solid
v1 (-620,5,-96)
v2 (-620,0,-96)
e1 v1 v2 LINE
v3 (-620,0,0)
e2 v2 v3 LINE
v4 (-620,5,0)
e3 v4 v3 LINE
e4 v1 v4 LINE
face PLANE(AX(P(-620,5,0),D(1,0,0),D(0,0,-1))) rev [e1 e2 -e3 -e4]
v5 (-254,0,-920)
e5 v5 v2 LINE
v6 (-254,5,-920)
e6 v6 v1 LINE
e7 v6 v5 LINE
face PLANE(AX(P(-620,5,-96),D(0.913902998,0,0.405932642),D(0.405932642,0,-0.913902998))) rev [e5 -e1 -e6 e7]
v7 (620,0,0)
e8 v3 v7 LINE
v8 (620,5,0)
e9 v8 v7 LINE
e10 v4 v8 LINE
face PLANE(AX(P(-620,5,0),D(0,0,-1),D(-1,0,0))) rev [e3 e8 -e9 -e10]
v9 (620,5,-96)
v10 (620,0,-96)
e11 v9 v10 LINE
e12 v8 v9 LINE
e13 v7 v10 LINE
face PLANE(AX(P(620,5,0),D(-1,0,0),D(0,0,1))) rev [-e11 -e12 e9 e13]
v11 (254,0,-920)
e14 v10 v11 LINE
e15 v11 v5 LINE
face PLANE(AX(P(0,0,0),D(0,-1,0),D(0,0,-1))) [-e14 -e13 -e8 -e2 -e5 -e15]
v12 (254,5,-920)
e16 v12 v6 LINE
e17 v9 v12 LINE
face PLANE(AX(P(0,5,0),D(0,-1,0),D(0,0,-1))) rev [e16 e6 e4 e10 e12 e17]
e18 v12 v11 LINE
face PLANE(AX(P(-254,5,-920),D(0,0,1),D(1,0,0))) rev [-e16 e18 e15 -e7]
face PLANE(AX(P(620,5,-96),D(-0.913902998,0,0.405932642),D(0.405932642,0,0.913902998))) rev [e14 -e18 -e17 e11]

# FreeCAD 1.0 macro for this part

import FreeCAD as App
import Part
import Sketcher

V = App.Vector


def add_polygon(sketch, points):
    """Adds a closed chain of lines whose ends are joined by coincident constraints."""
    first, n = sketch.GeometryCount, len(points)
    for a, b in zip(points, points[1:] + points[:1]):
        sketch.addGeometry(Part.LineSegment(App.Vector(*a, 0), App.Vector(*b, 0)), False)
    for i in range(n):
        sketch.addConstraint(Sketcher.Constraint("Coincident", first + i, 2, first + (i + 1) % n, 1))

doc = App.newDocument("Part")
body = doc.addObject("PartDesign::Body", "Body")

sketch1 = body.newObject("Sketcher::SketchObject", "Sketch")
sketch1.AttachmentSupport = (doc.getObject("XZ_Plane"), [""])
sketch1.MapMode = "FlatFace"
add_polygon(sketch1, [(-620, 0), (620, 0), (620, -96), (254, -920), (-254, -920), (-620, -96)])
sketch1.addConstraint([
    Sketcher.Constraint("Horizontal", 0),
    Sketcher.Constraint("Vertical", 1),
    Sketcher.Constraint("Horizontal", 3),
    Sketcher.Constraint("Vertical", 5),
    Sketcher.Constraint("Symmetric", 0, 2, 5, 2, -1, 1),
    Sketcher.Constraint("Horizontal", 1, 2, 4, 2),
    Sketcher.Constraint("Equal", 2, 4),
    Sketcher.Constraint("DistanceX", 0, 1, 0, 2, 1240.0),
    Sketcher.Constraint("DistanceX", 3, 2, 3, 1, 508.0),
    Sketcher.Constraint("DistanceY", 1, 2, 1, 1, 96.0),
    Sketcher.Constraint("DistanceY", 2, 2, -1, 1, 920.0),
])
pad1 = body.newObject("PartDesign::Pad", "Pad")
pad1.Profile = sketch1
pad1.Length = 5
pad1.Reversed = True

doc.recompute()
